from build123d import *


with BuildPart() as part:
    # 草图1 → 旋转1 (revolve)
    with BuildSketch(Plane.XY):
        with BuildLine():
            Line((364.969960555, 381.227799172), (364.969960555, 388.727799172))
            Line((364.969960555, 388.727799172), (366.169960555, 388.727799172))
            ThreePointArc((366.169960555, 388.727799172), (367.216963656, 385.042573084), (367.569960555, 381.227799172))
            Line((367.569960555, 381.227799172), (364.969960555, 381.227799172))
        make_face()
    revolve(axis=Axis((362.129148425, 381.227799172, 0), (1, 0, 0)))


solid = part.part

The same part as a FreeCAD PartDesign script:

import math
import FreeCAD as App
import Part
import Sketcher
Q = App.Units.Quantity

doc = App.newDocument("Part")
body = doc.addObject("PartDesign::Body", "Body")

# Sketch on XY plane
sketch1 = doc.addObject("Sketcher::SketchObject", "Sketch")
body.addObject(sketch1)
sketch1.AttachmentSupport = (doc.XY_Plane, [""])
sketch1.MapMode = "FlatFace"
sketch1.addGeometry(Part.LineSegment(App.Vector(364.969961, 388.727799, 0), App.Vector(364.969961, 381.227799, 0)), False)
sketch1.addGeometry(Part.LineSegment(App.Vector(364.969961, 381.227799, 0), App.Vector(367.569961, 381.227799, 0)), False)
sketch1.addGeometry(Part.ArcOfCircle(Part.Circle(App.Vector(346.780675, 381.227799, 0), App.Vector(0, 0, 1), 20.789286), math.radians(0), math.radians(21.147047)), False)
sketch1.addGeometry(Part.LineSegment(App.Vector(366.169961, 388.727799, 0), App.Vector(364.969961, 388.727799, 0)), False)
sketch1.addGeometry(Part.LineSegment(App.Vector(346.780675, 381.227799, 0), App.Vector(367.569961, 381.227799, 0)), True)  # axis
sketch1.addConstraint(Sketcher.Constraint("Coincident", 0, 2, 1, 1))
sketch1.addConstraint(Sketcher.Constraint("Coincident", 1, 2, 2, 1))
sketch1.addConstraint(Sketcher.Constraint("Coincident", 2, 2, 3, 1))
sketch1.addConstraint(Sketcher.Constraint("Coincident", 3, 2, 0, 1))
sketch1.addConstraint(Sketcher.Constraint("Vertical", 0))
sketch1.addConstraint(Sketcher.Constraint("Horizontal", 1))
sketch1.addConstraint(Sketcher.Constraint("Horizontal", 3))
sketch1.addConstraint(Sketcher.Constraint("Horizontal", 4))
sketch1.addConstraint(Sketcher.Constraint("Coincident", 4, 1, 2, 3))
sketch1.addConstraint(Sketcher.Constraint("Coincident", 4, 2, 1, 2))
sketch1.addConstraint(Sketcher.Constraint("DistanceX", 1, 1, 1, 2, Q("2.6 mm")))
sketch1.addConstraint(Sketcher.Constraint("DistanceX", 3, 2, 3, 1, Q("1.2 mm")))
sketch1.addConstraint(Sketcher.Constraint("DistanceY", 0, 2, 0, 1, Q("7.5 mm")))
sketch1.addConstraint(Sketcher.Constraint("DistanceY", -1, 1, 2, 3, Q("381.227799 mm")))
sketch1.addConstraint(Sketcher.Constraint("DistanceX", -1, 1, 0, 2, Q("364.969961 mm")))
revolution = doc.addObject("PartDesign::Revolution", "Revolution")
body.addObject(revolution)
revolution.Profile = sketch1
revolution.ReferenceAxis = (sketch1, ["Axis0"])
revolution.Angle = 360

doc.recompute()
